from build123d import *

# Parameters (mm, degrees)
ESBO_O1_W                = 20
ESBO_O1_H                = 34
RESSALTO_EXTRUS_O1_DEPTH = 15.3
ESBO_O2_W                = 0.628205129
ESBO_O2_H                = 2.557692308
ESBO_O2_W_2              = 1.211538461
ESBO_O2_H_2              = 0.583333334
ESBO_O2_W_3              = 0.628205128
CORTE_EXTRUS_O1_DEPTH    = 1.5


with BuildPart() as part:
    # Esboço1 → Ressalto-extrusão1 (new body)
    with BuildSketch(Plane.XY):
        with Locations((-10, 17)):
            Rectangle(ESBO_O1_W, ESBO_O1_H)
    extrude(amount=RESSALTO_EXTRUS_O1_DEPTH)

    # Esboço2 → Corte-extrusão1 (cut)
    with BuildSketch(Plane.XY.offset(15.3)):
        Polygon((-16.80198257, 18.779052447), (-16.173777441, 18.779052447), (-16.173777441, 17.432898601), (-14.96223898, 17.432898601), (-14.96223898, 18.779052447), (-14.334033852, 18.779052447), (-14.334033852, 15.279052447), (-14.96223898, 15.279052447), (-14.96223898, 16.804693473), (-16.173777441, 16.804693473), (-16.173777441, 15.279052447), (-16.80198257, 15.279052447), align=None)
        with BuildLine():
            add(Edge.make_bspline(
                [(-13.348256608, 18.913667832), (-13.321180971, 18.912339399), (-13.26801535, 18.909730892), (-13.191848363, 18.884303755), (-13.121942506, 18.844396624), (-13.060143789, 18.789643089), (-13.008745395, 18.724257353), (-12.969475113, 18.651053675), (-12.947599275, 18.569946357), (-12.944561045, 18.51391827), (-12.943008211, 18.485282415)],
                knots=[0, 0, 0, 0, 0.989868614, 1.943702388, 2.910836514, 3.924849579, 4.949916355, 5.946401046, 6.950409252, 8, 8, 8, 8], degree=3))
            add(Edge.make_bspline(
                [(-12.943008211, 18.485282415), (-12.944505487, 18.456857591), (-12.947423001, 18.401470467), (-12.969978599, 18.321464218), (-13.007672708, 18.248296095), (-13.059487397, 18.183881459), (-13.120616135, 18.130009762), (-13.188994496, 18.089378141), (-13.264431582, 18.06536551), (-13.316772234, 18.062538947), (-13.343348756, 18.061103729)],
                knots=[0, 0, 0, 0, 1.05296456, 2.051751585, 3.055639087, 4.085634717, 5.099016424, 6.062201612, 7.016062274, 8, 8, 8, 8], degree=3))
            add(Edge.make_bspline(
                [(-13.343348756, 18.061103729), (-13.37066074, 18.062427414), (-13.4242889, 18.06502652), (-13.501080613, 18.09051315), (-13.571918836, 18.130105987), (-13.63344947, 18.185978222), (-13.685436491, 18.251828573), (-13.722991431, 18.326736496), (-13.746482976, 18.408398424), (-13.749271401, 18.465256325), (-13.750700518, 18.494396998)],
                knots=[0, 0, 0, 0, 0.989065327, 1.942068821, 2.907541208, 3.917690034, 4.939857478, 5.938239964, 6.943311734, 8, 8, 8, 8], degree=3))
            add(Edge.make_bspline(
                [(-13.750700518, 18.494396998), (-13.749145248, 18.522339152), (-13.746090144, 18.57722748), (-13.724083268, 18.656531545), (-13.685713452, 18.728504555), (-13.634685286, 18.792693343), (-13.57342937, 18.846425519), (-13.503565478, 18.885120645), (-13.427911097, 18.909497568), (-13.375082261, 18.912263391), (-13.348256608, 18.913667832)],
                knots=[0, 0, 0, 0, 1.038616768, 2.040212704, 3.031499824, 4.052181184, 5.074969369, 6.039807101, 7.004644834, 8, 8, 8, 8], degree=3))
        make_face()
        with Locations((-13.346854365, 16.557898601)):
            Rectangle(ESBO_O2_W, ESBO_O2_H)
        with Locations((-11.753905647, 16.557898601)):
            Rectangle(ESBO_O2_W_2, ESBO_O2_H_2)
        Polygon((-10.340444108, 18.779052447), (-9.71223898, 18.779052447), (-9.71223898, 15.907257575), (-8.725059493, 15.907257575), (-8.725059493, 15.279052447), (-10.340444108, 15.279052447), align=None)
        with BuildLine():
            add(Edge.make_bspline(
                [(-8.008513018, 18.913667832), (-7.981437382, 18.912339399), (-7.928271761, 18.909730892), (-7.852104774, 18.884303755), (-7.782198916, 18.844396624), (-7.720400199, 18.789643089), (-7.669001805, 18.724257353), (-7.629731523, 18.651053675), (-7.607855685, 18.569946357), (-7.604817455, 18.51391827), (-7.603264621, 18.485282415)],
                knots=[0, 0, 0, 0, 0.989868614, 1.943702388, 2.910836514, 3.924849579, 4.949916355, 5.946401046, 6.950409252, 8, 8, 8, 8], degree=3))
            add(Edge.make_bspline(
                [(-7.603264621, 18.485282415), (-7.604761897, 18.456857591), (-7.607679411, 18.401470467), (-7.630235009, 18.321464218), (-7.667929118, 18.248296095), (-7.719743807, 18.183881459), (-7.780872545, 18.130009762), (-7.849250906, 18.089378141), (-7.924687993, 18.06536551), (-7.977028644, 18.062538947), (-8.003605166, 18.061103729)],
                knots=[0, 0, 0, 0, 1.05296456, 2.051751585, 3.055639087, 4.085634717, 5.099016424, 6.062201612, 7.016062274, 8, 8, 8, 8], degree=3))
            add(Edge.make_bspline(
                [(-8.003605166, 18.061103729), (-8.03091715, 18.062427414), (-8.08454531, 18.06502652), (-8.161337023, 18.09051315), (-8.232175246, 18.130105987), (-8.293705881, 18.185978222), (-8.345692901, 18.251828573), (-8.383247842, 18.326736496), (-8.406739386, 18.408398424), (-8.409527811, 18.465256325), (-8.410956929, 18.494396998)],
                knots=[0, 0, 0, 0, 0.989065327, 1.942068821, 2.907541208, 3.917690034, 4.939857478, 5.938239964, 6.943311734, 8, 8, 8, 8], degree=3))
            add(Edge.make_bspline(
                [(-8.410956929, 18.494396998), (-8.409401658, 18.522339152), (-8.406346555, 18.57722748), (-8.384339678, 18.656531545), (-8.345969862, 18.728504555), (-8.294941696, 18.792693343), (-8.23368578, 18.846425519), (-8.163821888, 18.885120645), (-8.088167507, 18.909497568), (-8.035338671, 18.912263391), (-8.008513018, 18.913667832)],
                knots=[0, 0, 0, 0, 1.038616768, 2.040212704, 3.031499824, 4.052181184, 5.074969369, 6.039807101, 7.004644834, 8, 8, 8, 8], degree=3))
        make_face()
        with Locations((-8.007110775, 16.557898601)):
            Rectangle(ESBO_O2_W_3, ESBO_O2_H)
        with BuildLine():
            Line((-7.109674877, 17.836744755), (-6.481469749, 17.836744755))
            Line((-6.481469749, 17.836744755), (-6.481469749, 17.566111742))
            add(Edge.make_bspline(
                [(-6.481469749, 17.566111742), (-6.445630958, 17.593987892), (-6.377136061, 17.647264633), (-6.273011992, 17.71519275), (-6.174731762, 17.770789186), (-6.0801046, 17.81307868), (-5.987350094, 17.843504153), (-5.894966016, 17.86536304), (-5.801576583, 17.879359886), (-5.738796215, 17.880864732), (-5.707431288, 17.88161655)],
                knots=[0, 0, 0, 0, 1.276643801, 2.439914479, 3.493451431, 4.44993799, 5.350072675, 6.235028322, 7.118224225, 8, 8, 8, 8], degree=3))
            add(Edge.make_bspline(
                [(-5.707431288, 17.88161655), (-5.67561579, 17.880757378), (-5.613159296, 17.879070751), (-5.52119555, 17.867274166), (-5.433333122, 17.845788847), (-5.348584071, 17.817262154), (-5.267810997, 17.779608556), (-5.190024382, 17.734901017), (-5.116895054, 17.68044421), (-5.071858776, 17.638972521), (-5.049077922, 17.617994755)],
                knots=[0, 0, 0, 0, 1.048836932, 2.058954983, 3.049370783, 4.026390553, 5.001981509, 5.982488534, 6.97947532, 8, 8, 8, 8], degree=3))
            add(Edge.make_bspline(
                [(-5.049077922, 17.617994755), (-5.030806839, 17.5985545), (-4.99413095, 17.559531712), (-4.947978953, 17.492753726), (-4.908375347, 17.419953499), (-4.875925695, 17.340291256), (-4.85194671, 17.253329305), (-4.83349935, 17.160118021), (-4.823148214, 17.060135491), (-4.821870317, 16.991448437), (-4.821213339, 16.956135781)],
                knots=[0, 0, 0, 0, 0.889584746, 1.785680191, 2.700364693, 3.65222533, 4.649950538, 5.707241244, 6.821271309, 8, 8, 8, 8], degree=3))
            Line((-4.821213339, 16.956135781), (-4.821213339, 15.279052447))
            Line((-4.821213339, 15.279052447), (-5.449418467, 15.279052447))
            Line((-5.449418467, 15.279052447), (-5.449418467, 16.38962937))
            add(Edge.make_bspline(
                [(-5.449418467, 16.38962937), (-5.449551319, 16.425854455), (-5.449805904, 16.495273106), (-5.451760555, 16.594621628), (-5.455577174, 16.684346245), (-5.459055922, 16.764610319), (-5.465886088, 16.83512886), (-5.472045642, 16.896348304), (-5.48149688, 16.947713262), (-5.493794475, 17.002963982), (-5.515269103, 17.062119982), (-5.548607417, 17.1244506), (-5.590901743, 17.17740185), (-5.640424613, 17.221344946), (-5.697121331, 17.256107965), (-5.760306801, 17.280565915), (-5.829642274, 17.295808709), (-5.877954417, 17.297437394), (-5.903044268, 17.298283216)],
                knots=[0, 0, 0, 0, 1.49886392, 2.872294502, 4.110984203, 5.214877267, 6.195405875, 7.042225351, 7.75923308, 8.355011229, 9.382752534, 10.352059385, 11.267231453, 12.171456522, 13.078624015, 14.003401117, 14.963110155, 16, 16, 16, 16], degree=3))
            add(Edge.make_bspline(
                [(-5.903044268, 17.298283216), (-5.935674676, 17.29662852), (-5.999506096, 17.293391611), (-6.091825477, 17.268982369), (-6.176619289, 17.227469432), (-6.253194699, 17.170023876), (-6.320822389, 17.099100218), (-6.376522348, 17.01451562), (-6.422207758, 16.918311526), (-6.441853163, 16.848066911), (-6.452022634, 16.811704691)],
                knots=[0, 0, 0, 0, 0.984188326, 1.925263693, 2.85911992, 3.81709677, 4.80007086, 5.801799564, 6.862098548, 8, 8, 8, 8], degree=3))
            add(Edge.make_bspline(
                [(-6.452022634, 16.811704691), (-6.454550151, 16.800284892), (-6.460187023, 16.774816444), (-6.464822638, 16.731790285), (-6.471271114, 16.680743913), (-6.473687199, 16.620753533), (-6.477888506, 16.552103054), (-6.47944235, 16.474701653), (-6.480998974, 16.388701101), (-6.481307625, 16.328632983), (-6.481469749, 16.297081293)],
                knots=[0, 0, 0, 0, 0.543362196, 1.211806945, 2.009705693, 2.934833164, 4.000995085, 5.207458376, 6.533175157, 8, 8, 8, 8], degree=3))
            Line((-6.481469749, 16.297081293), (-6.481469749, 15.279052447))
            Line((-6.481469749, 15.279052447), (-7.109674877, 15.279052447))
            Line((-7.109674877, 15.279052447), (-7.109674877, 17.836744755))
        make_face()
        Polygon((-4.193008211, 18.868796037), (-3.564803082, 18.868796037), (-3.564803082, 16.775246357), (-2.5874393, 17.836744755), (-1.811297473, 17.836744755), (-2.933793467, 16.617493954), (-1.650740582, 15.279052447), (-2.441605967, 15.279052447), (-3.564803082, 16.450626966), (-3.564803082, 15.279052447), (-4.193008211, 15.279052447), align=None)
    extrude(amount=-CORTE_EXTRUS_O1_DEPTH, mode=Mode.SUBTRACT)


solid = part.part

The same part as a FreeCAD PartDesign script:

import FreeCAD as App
import Part
import Sketcher


def add_polygon(sketch, points):
    """Adds a closed chain of lines whose ends are joined by coincident constraints."""
    first, n = sketch.GeometryCount, len(points)
    for a, b in zip(points, points[1:] + points[:1]):
        sketch.addGeometry(Part.LineSegment(App.Vector(*a, 0), App.Vector(*b, 0)), False)
    for i in range(n):
        sketch.addConstraint(Sketcher.Constraint("Coincident", first + i, 2, first + (i + 1) % n, 1))

doc = App.newDocument("Part")
body = doc.addObject("PartDesign::Body", "Body")

sketch1 = body.newObject("Sketcher::SketchObject", "Sketch")
sketch1.AttachmentSupport = (doc.getObject("XY_Plane"), [""])
sketch1.MapMode = "FlatFace"
add_polygon(sketch1, [(-20, 34), (-20, 0), (0, 0), (0, 34)])
sketch1.addConstraint(Sketcher.Constraint("Vertical", 0))
sketch1.addConstraint(Sketcher.Constraint("Horizontal", 1))
sketch1.addConstraint(Sketcher.Constraint("Vertical", 2))
sketch1.addConstraint(Sketcher.Constraint("Horizontal", 3))
sketch1.addConstraint(Sketcher.Constraint("Coincident", 1, 2, -1, 1))
sketch1.addConstraint(Sketcher.Constraint("DistanceX", 1, 1, 1, 2, 20.0))
sketch1.addConstraint(Sketcher.Constraint("DistanceY", 0, 2, 0, 1, 34.0))
pad1 = body.newObject("PartDesign::Pad", "Pad")
pad1.Profile = sketch1
pad1.Length = 15.3

sketch2 = body.newObject("Sketcher::SketchObject", "Sketch001")
sketch2.AttachmentSupport = (doc.getObject("XY_Plane"), [""])
sketch2.MapMode = "FlatFace"
sketch2.AttachmentOffset = App.Placement(App.Vector(0, 0, 15.3), App.Rotation())
add_polygon(sketch2, [(-16.173777, 18.779052), (-16.801983, 18.779052), (-16.801983, 15.279052), (-16.173777, 15.279052), (-16.173777, 16.804693), (-14.962239, 16.804693), (-14.962239, 15.279052), (-14.334034, 15.279052), (-14.334034, 18.779052), (-14.962239, 18.779052), (-14.962239, 17.432899), (-16.173777, 17.432899)])
sketch2.addGeometry(Part.BSplineCurve([App.Vector(-13.348257, 18.913668, 0), App.Vector(-13.321181, 18.912339, 0), App.Vector(-13.268015, 18.909731, 0), App.Vector(-13.191848, 18.884304, 0), App.Vector(-13.121943, 18.844397, 0), App.Vector(-13.060144, 18.789643, 0), App.Vector(-13.008745, 18.724257, 0), App.Vector(-12.969475, 18.651054, 0), App.Vector(-12.947599, 18.569946, 0), App.Vector(-12.944561, 18.513918, 0), App.Vector(-12.943008, 18.485282, 0)], [4, 1, 1, 1, 1, 1, 1, 1, 4], [0, 0.989868614, 1.943702388, 2.910836514, 3.924849579, 4.949916355, 5.946401046, 6.950409252, 8], False, 3, [1, 1, 1, 1, 1, 1, 1, 1, 1, 1, 1], False), False)
sketch2.addGeometry(Part.BSplineCurve([App.Vector(-13.750701, 18.494397, 0), App.Vector(-13.749145, 18.522339, 0), App.Vector(-13.74609, 18.577227, 0), App.Vector(-13.724083, 18.656532, 0), App.Vector(-13.685713, 18.728505, 0), App.Vector(-13.634685, 18.792693, 0), App.Vector(-13.573429, 18.846426, 0), App.Vector(-13.503565, 18.885121, 0), App.Vector(-13.427911, 18.909498, 0), App.Vector(-13.375082, 18.912263, 0), App.Vector(-13.348257, 18.913668, 0)], [4, 1, 1, 1, 1, 1, 1, 1, 4], [0, 1.038616768, 2.040212704, 3.031499824, 4.052181184, 5.074969369, 6.039807101, 7.004644834, 8], False, 3, [1, 1, 1, 1, 1, 1, 1, 1, 1, 1, 1], False), False)
sketch2.addGeometry(Part.BSplineCurve([App.Vector(-13.343349, 18.061104, 0), App.Vector(-13.370661, 18.062427, 0), App.Vector(-13.424289, 18.065027, 0), App.Vector(-13.501081, 18.090513, 0), App.Vector(-13.571919, 18.130106, 0), App.Vector(-13.633449, 18.185978, 0), App.Vector(-13.685436, 18.251829, 0), App.Vector(-13.722991, 18.326736, 0), App.Vector(-13.746483, 18.408398, 0), App.Vector(-13.749271, 18.465256, 0), App.Vector(-13.750701, 18.494397, 0)], [4, 1, 1, 1, 1, 1, 1, 1, 4], [0, 0.989065327, 1.942068821, 2.907541208, 3.917690034, 4.939857478, 5.938239964, 6.943311734, 8], False, 3, [1, 1, 1, 1, 1, 1, 1, 1, 1, 1, 1], False), False)
sketch2.addGeometry(Part.BSplineCurve([App.Vector(-12.943008, 18.485282, 0), App.Vector(-12.944505, 18.456858, 0), App.Vector(-12.947423, 18.40147, 0), App.Vector(-12.969979, 18.321464, 0), App.Vector(-13.007673, 18.248296, 0), App.Vector(-13.059487, 18.183881, 0), App.Vector(-13.120616, 18.13001, 0), App.Vector(-13.188994, 18.089378, 0), App.Vector(-13.264432, 18.065366, 0), App.Vector(-13.316772, 18.062539, 0), App.Vector(-13.343349, 18.061104, 0)], [4, 1, 1, 1, 1, 1, 1, 1, 4], [0, 1.05296456, 2.051751585, 3.055639087, 4.085634717, 5.099016424, 6.062201612, 7.016062274, 8], False, 3, [1, 1, 1, 1, 1, 1, 1, 1, 1, 1, 1], False), False)
add_polygon(sketch2, [(-13.660957, 17.836745), (-13.660957, 15.279052), (-13.032752, 15.279052), (-13.032752, 17.836745)])
add_polygon(sketch2, [(-12.359675, 16.849565), (-12.359675, 16.266232), (-11.148136, 16.266232), (-11.148136, 16.849565)])
add_polygon(sketch2, [(-9.712239, 18.779052), (-10.340444, 18.779052), (-10.340444, 15.279052), (-8.725059, 15.279052), (-8.725059, 15.907258), (-9.712239, 15.907258)])
sketch2.addGeometry(Part.BSplineCurve([App.Vector(-8.008513, 18.913668, 0), App.Vector(-7.981437, 18.912339, 0), App.Vector(-7.928272, 18.909731, 0), App.Vector(-7.852105, 18.884304, 0), App.Vector(-7.782199, 18.844397, 0), App.Vector(-7.7204, 18.789643, 0), App.Vector(-7.669002, 18.724257, 0), App.Vector(-7.629732, 18.651054, 0), App.Vector(-7.607856, 18.569946, 0), App.Vector(-7.604817, 18.513918, 0), App.Vector(-7.603265, 18.485282, 0)], [4, 1, 1, 1, 1, 1, 1, 1, 4], [0, 0.989868614, 1.943702388, 2.910836514, 3.924849579, 4.949916355, 5.946401046, 6.950409252, 8], False, 3, [1, 1, 1, 1, 1, 1, 1, 1, 1, 1, 1], False), False)
sketch2.addGeometry(Part.BSplineCurve([App.Vector(-8.410957, 18.494397, 0), App.Vector(-8.409402, 18.522339, 0), App.Vector(-8.406347, 18.577227, 0), App.Vector(-8.38434, 18.656532, 0), App.Vector(-8.34597, 18.728505, 0), App.Vector(-8.294942, 18.792693, 0), App.Vector(-8.233686, 18.846426, 0), App.Vector(-8.163822, 18.885121, 0), App.Vector(-8.088168, 18.909498, 0), App.Vector(-8.035339, 18.912263, 0), App.Vector(-8.008513, 18.913668, 0)], [4, 1, 1, 1, 1, 1, 1, 1, 4], [0, 1.038616768, 2.040212704, 3.031499824, 4.052181184, 5.074969369, 6.039807101, 7.004644834, 8], False, 3, [1, 1, 1, 1, 1, 1, 1, 1, 1, 1, 1], False), False)
sketch2.addGeometry(Part.BSplineCurve([App.Vector(-8.003605, 18.061104, 0), App.Vector(-8.030917, 18.062427, 0), App.Vector(-8.084545, 18.065027, 0), App.Vector(-8.161337, 18.090513, 0), App.Vector(-8.232175, 18.130106, 0), App.Vector(-8.293706, 18.185978, 0), App.Vector(-8.345693, 18.251829, 0), App.Vector(-8.383248, 18.326736, 0), App.Vector(-8.406739, 18.408398, 0), App.Vector(-8.409528, 18.465256, 0), App.Vector(-8.410957, 18.494397, 0)], [4, 1, 1, 1, 1, 1, 1, 1, 4], [0, 0.989065327, 1.942068821, 2.907541208, 3.917690034, 4.939857478, 5.938239964, 6.943311734, 8], False, 3, [1, 1, 1, 1, 1, 1, 1, 1, 1, 1, 1], False), False)
sketch2.addGeometry(Part.BSplineCurve([App.Vector(-7.603265, 18.485282, 0), App.Vector(-7.604762, 18.456858, 0), App.Vector(-7.607679, 18.40147, 0), App.Vector(-7.630235, 18.321464, 0), App.Vector(-7.667929, 18.248296, 0), App.Vector(-7.719744, 18.183881, 0), App.Vector(-7.780873, 18.13001, 0), App.Vector(-7.849251, 18.089378, 0), App.Vector(-7.924688, 18.065366, 0), App.Vector(-7.977029, 18.062539, 0), App.Vector(-8.003605, 18.061104, 0)], [4, 1, 1, 1, 1, 1, 1, 1, 4], [0, 1.05296456, 2.051751585, 3.055639087, 4.085634717, 5.099016424, 6.062201612, 7.016062274, 8], False, 3, [1, 1, 1, 1, 1, 1, 1, 1, 1, 1, 1], False), False)
add_polygon(sketch2, [(-8.321213, 17.836745), (-8.321213, 15.279052), (-7.693008, 15.279052), (-7.693008, 17.836745)])
sketch2.addGeometry(Part.LineSegment(App.Vector(-6.48147, 17.836745, 0), App.Vector(-7.109675, 17.836745, 0)), False)
sketch2.addGeometry(Part.LineSegment(App.Vector(-7.109675, 17.836745, 0), App.Vector(-7.109675, 15.279052, 0)), False)
sketch2.addGeometry(Part.LineSegment(App.Vector(-7.109675, 15.279052, 0), App.Vector(-6.48147, 15.279052, 0)), False)
sketch2.addGeometry(Part.LineSegment(App.Vector(-6.48147, 15.279052, 0), App.Vector(-6.48147, 16.297081, 0)), False)
sketch2.addGeometry(Part.BSplineCurve([App.Vector(-6.452023, 16.811705, 0), App.Vector(-6.45455, 16.800285, 0), App.Vector(-6.460187, 16.774816, 0), App.Vector(-6.464823, 16.73179, 0), App.Vector(-6.471271, 16.680744, 0), App.Vector(-6.473687, 16.620754, 0), App.Vector(-6.477889, 16.552103, 0), App.Vector(-6.479442, 16.474702, 0), App.Vector(-6.480999, 16.388701, 0), App.Vector(-6.481308, 16.328633, 0), App.Vector(-6.48147, 16.297081, 0)], [4, 1, 1, 1, 1, 1, 1, 1, 4], [0, 0.543362196, 1.211806945, 2.009705693, 2.934833164, 4.000995085, 5.207458376, 6.533175157, 8], False, 3, [1, 1, 1, 1, 1, 1, 1, 1, 1, 1, 1], False), False)
sketch2.addGeometry(Part.BSplineCurve([App.Vector(-5.903044, 17.298283, 0), App.Vector(-5.935675, 17.296629, 0), App.Vector(-5.999506, 17.293392, 0), App.Vector(-6.091825, 17.268982, 0), App.Vector(-6.176619, 17.227469, 0), App.Vector(-6.253195, 17.170024, 0), App.Vector(-6.320822, 17.0991, 0), App.Vector(-6.376522, 17.014516, 0), App.Vector(-6.422208, 16.918312, 0), App.Vector(-6.441853, 16.848067, 0), App.Vector(-6.452023, 16.811705, 0)], [4, 1, 1, 1, 1, 1, 1, 1, 4], [0, 0.984188326, 1.925263693, 2.85911992, 3.81709677, 4.80007086, 5.801799564, 6.862098548, 8], False, 3, [1, 1, 1, 1, 1, 1, 1, 1, 1, 1, 1], False), False)
sketch2.addGeometry(Part.BSplineCurve([App.Vector(-5.449418, 16.389629, 0), App.Vector(-5.449551, 16.425854, 0), App.Vector(-5.449806, 16.495273, 0), App.Vector(-5.451761, 16.594622, 0), App.Vector(-5.455577, 16.684346, 0), App.Vector(-5.459056, 16.76461, 0), App.Vector(-5.465886, 16.835129, 0), App.Vector(-5.472046, 16.896348, 0), App.Vector(-5.481497, 16.947713, 0), App.Vector(-5.493794, 17.002964, 0), App.Vector(-5.515269, 17.06212, 0), App.Vector(-5.548607, 17.124451, 0), App.Vector(-5.590902, 17.177402, 0), App.Vector(-5.640425, 17.221345, 0), App.Vector(-5.697121, 17.256108, 0), App.Vector(-5.760307, 17.280566, 0), App.Vector(-5.829642, 17.295809, 0), App.Vector(-5.877954, 17.297437, 0), App.Vector(-5.903044, 17.298283, 0)], [4, 1, 1, 1, 1, 1, 1, 1, 1, 1, 1, 1, 1, 1, 1, 1, 4], [0, 1.49886392, 2.872294502, 4.110984203, 5.214877267, 6.195405875, 7.042225351, 7.75923308, 8.355011229, 9.382752534, 10.352059385, 11.267231453, 12.171456522, 13.078624015, 14.003401117, 14.963110155, 16], False, 3, [1, 1, 1, 1, 1, 1, 1, 1, 1, 1, 1, 1, 1, 1, 1, 1, 1, 1, 1], False), False)
sketch2.addGeometry(Part.LineSegment(App.Vector(-5.449418, 16.389629, 0), App.Vector(-5.449418, 15.279052, 0)), False)
sketch2.addGeometry(Part.LineSegment(App.Vector(-5.449418, 15.279052, 0), App.Vector(-4.821213, 15.279052, 0)), False)
sketch2.addGeometry(Part.LineSegment(App.Vector(-4.821213, 15.279052, 0), App.Vector(-4.821213, 16.956136, 0)), False)
sketch2.addGeometry(Part.BSplineCurve([App.Vector(-5.049078, 17.617995, 0), App.Vector(-5.030807, 17.598554, 0), App.Vector(-4.994131, 17.559532, 0), App.Vector(-4.947979, 17.492754, 0), App.Vector(-4.908375, 17.419953, 0), App.Vector(-4.875926, 17.340291, 0), App.Vector(-4.851947, 17.253329, 0), App.Vector(-4.833499, 17.160118, 0), App.Vector(-4.823148, 17.060135, 0), App.Vector(-4.82187, 16.991448, 0), App.Vector(-4.821213, 16.956136, 0)], [4, 1, 1, 1, 1, 1, 1, 1, 4], [0, 0.889584746, 1.785680191, 2.700364693, 3.65222533, 4.649950538, 5.707241244, 6.821271309, 8], False, 3, [1, 1, 1, 1, 1, 1, 1, 1, 1, 1, 1], False), False)
sketch2.addGeometry(Part.BSplineCurve([App.Vector(-5.707431, 17.881617, 0), App.Vector(-5.675616, 17.880757, 0), App.Vector(-5.613159, 17.879071, 0), App.Vector(-5.521196, 17.867274, 0), App.Vector(-5.433333, 17.845789, 0), App.Vector(-5.348584, 17.817262, 0), App.Vector(-5.267811, 17.779609, 0), App.Vector(-5.190024, 17.734901, 0), App.Vector(-5.116895, 17.680444, 0), App.Vector(-5.071859, 17.638973, 0), App.Vector(-5.049078, 17.617995, 0)], [4, 1, 1, 1, 1, 1, 1, 1, 4], [0, 1.048836932, 2.058954983, 3.049370783, 4.026390553, 5.001981509, 5.982488534, 6.97947532, 8], False, 3, [1, 1, 1, 1, 1, 1, 1, 1, 1, 1, 1], False), False)
sketch2.addGeometry(Part.BSplineCurve([App.Vector(-6.48147, 17.566112, 0), App.Vector(-6.445631, 17.593988, 0), App.Vector(-6.377136, 17.647265, 0), App.Vector(-6.273012, 17.715193, 0), App.Vector(-6.174732, 17.770789, 0), App.Vector(-6.080105, 17.813079, 0), App.Vector(-5.98735, 17.843504, 0), App.Vector(-5.894966, 17.865363, 0), App.Vector(-5.801577, 17.87936, 0), App.Vector(-5.738796, 17.880865, 0), App.Vector(-5.707431, 17.881617, 0)], [4, 1, 1, 1, 1, 1, 1, 1, 4], [0, 1.276643801, 2.439914479, 3.493451431, 4.44993799, 5.350072675, 6.235028322, 7.118224225, 8], False, 3, [1, 1, 1, 1, 1, 1, 1, 1, 1, 1, 1], False), False)
sketch2.addGeometry(Part.LineSegment(App.Vector(-6.48147, 17.566112, 0), App.Vector(-6.48147, 17.836745, 0)), False)
add_polygon(sketch2, [(-3.564803, 18.868796), (-4.193008, 18.868796), (-4.193008, 15.279052), (-3.564803, 15.279052), (-3.564803, 16.450627), (-2.441606, 15.279052), (-1.650741, 15.279052), (-2.933793, 16.617494), (-1.811297, 17.836745), (-2.587439, 17.836745), (-3.564803, 16.775246)])
sketch2.addConstraint(Sketcher.Constraint("Block", 12))
sketch2.addConstraint(Sketcher.Constraint("Block", 13))
sketch2.addConstraint(Sketcher.Constraint("Block", 14))
sketch2.addConstraint(Sketcher.Constraint("Block", 15))
sketch2.addConstraint(Sketcher.Constraint("Block", 30))
sketch2.addConstraint(Sketcher.Constraint("Block", 31))
sketch2.addConstraint(Sketcher.Constraint("Block", 32))
sketch2.addConstraint(Sketcher.Constraint("Block", 33))
sketch2.addConstraint(Sketcher.Constraint("Block", 42))
sketch2.addConstraint(Sketcher.Constraint("Block", 43))
sketch2.addConstraint(Sketcher.Constraint("Block", 44))
sketch2.addConstraint(Sketcher.Constraint("Block", 48))
sketch2.addConstraint(Sketcher.Constraint("Block", 49))
sketch2.addConstraint(Sketcher.Constraint("Block", 50))
sketch2.addConstraint(Sketcher.Constraint("Coincident", 38, 2, 39, 1))
sketch2.addConstraint(Sketcher.Constraint("Coincident", 39, 2, 40, 1))
sketch2.addConstraint(Sketcher.Constraint("Coincident", 40, 2, 41, 1))
sketch2.addConstraint(Sketcher.Constraint("Coincident", 41, 2, 42, 2))
sketch2.addConstraint(Sketcher.Constraint("Coincident", 44, 1, 45, 1))
sketch2.addConstraint(Sketcher.Constraint("Coincident", 45, 2, 46, 1))
sketch2.addConstraint(Sketcher.Constraint("Coincident", 46, 2, 47, 1))
sketch2.addConstraint(Sketcher.Constraint("Coincident", 47, 2, 48, 2))
sketch2.addConstraint(Sketcher.Constraint("Coincident", 50, 1, 51, 1))
sketch2.addConstraint(Sketcher.Constraint("Coincident", 51, 2, 38, 1))
sketch2.addConstraint(Sketcher.Constraint("Horizontal", 0))
sketch2.addConstraint(Sketcher.Constraint("Vertical", 1))
sketch2.addConstraint(Sketcher.Constraint("Horizontal", 2))
sketch2.addConstraint(Sketcher.Constraint("Vertical", 3))
sketch2.addConstraint(Sketcher.Constraint("Horizontal", 4))
sketch2.addConstraint(Sketcher.Constraint("Vertical", 5))
sketch2.addConstraint(Sketcher.Constraint("Horizontal", 6))
sketch2.addConstraint(Sketcher.Constraint("Vertical", 7))
sketch2.addConstraint(Sketcher.Constraint("Horizontal", 8))
sketch2.addConstraint(Sketcher.Constraint("Vertical", 9))
sketch2.addConstraint(Sketcher.Constraint("Horizontal", 10))
sketch2.addConstraint(Sketcher.Constraint("Vertical", 11))
sketch2.addConstraint(Sketcher.Constraint("Vertical", 16))
sketch2.addConstraint(Sketcher.Constraint("Horizontal", 17))
sketch2.addConstraint(Sketcher.Constraint("Vertical", 18))
sketch2.addConstraint(Sketcher.Constraint("Horizontal", 19))
sketch2.addConstraint(Sketcher.Constraint("Vertical", 20))
sketch2.addConstraint(Sketcher.Constraint("Horizontal", 21))
sketch2.addConstraint(Sketcher.Constraint("Vertical", 22))
sketch2.addConstraint(Sketcher.Constraint("Horizontal", 23))
sketch2.addConstraint(Sketcher.Constraint("Horizontal", 24))
sketch2.addConstraint(Sketcher.Constraint("Vertical", 25))
sketch2.addConstraint(Sketcher.Constraint("Horizontal", 26))
sketch2.addConstraint(Sketcher.Constraint("Vertical", 27))
sketch2.addConstraint(Sketcher.Constraint("Horizontal", 28))
sketch2.addConstraint(Sketcher.Constraint("Vertical", 29))
sketch2.addConstraint(Sketcher.Constraint("Vertical", 34))
sketch2.addConstraint(Sketcher.Constraint("Horizontal", 35))
sketch2.addConstraint(Sketcher.Constraint("Vertical", 36))
sketch2.addConstraint(Sketcher.Constraint("Horizontal", 37))
sketch2.addConstraint(Sketcher.Constraint("Horizontal", 38))
sketch2.addConstraint(Sketcher.Constraint("Vertical", 39))
sketch2.addConstraint(Sketcher.Constraint("Horizontal", 40))
sketch2.addConstraint(Sketcher.Constraint("Vertical", 41))
sketch2.addConstraint(Sketcher.Constraint("Vertical", 45))
sketch2.addConstraint(Sketcher.Constraint("Horizontal", 46))
sketch2.addConstraint(Sketcher.Constraint("Vertical", 47))
sketch2.addConstraint(Sketcher.Constraint("Vertical", 51))
sketch2.addConstraint(Sketcher.Constraint("Horizontal", 52))
sketch2.addConstraint(Sketcher.Constraint("Vertical", 53))
sketch2.addConstraint(Sketcher.Constraint("Horizontal", 54))
sketch2.addConstraint(Sketcher.Constraint("Vertical", 55))
sketch2.addConstraint(Sketcher.Constraint("Horizontal", 57))
sketch2.addConstraint(Sketcher.Constraint("Horizontal", 60))
sketch2.addConstraint(Sketcher.Constraint("Vertical", 62))
sketch2.addConstraint(Sketcher.Constraint("DistanceY", 1, 2, 1, 1, 3.5))
sketch2.addConstraint(Sketcher.Constraint("DistanceY", 7, 1, 7, 2, 3.5))
sketch2.addConstraint(Sketcher.Constraint("DistanceY", 25, 2, 25, 1, 3.5))
sketch2.addConstraint(Sketcher.Constraint("DistanceY", 5, 2, 0, 2, 3.5))
sketch2.addConstraint(Sketcher.Constraint("DistanceX", 4, 1, 4, 2, 1.211538))
sketch2.addConstraint(Sketcher.Constraint("DistanceX", 10, 2, 10, 1, 1.211538))
sketch2.addConstraint(Sketcher.Constraint("DistanceX", 21, 1, 21, 2, 1.211538))
sketch2.addConstraint(Sketcher.Constraint("DistanceX", 28, 2, 28, 1, 0.987179))
sketch2.addConstraint(Sketcher.Constraint("DistanceX", 60, 2, 60, 1, 0.776142))
sketch2.addConstraint(Sketcher.Constraint("DistanceY", 3, 1, 3, 2, 1.525641))
sketch2.addConstraint(Sketcher.Constraint("DistanceY", 41, 1, 41, 2, 1.018029))
sketch2.addConstraint(Sketcher.Constraint("DistanceY", 62, 1, 62, 2, 2.09355))
sketch2.addConstraint(Sketcher.Constraint("DistanceY", -1, 1, 9, 2, 17.432899))
sketch2.addConstraint(Sketcher.Constraint("DistanceY", 61, 2, 60, 2, 1.061498))
sketch2.addConstraint(Sketcher.Constraint("Distance", 56, 1.623009))
sketch2.addConstraint(Sketcher.Constraint("Distance", 58, 1.85409))
sketch2.addConstraint(Sketcher.Constraint("Distance", 61, 1.44292))
sketch2.addConstraint(Sketcher.Constraint("DistanceX", 0, 2, 0, 1, 0.628205))
sketch2.addConstraint(Sketcher.Constraint("DistanceX", 2, 1, 2, 2, 0.628205))
sketch2.addConstraint(Sketcher.Constraint("DistanceX", 6, 1, 6, 2, 0.628205))
sketch2.addConstraint(Sketcher.Constraint("DistanceX", 17, 1, 17, 2, 0.628205))
sketch2.addConstraint(Sketcher.Constraint("DistanceX", 24, 2, 24, 1, 0.628205))
sketch2.addConstraint(Sketcher.Constraint("DistanceX", 35, 1, 35, 2, 0.628205))
sketch2.addConstraint(Sketcher.Constraint("DistanceX", 38, 2, 38, 1, 0.628205))
sketch2.addConstraint(Sketcher.Constraint("DistanceX", 52, 2, 52, 1, 0.628205))
sketch2.addConstraint(Sketcher.Constraint("DistanceX", 54, 1, 54, 2, 0.628205))
sketch2.addConstraint(Sketcher.Constraint("DistanceX", 57, 1, 57, 2, 0.790865))
sketch2.addConstraint(Sketcher.Constraint("DistanceY", 9, 2, 9, 1, 1.346154))
sketch2.addConstraint(Sketcher.Constraint("DistanceY", 16, 2, 16, 1, 2.557692))
sketch2.addConstraint(Sketcher.Constraint("DistanceY", 20, 2, 20, 1, 0.583333))
sketch2.addConstraint(Sketcher.Constraint("DistanceY", 27, 1, 27, 2, 0.628205))
sketch2.addConstraint(Sketcher.Constraint("DistanceY", 34, 2, 34, 1, 2.557692))
sketch2.addConstraint(Sketcher.Constraint("DistanceY", 39, 2, 39, 1, 2.557692))
sketch2.addConstraint(Sketcher.Constraint("DistanceY", 45, 2, 45, 1, 1.110577))
sketch2.addConstraint(Sketcher.Constraint("DistanceY", 53, 2, 53, 1, 3.589744))
sketch2.addConstraint(Sketcher.Constraint("DistanceY", 55, 1, 55, 2, 1.171575))
sketch2.addConstraint(Sketcher.Constraint("DistanceX", 4, 2, -1, 1, 14.962239))
sketch2.addConstraint(Sketcher.Constraint("DistanceX", 17, 2, -1, 1, 13.032752))
sketch2.addConstraint(Sketcher.Constraint("DistanceY", -1, 1, 20, 2, 16.266232))
sketch2.addConstraint(Sketcher.Constraint("DistanceX", 26, 2, -1, 1, 8.725059))
sketch2.addConstraint(Sketcher.Constraint("DistanceX", 35, 2, -1, 1, 7.693008))
sketch2.addConstraint(Sketcher.Constraint("DistanceX", 52, 2, -1, 1, 4.193008))
sketch2.addConstraint(Sketcher.Constraint("DistanceX", 57, 2, -1, 1, 1.650741))
sketch2.addConstraint(Sketcher.Constraint("DistanceY", 16, 2, 4, 2, 1.525641))
sketch2.addConstraint(Sketcher.Constraint("DistanceX", 6, 2, 20, 2, 1.974359))
sketch2.addConstraint(Sketcher.Constraint("DistanceY", 21, 2, 24, 2, 2.512821))
sketch2.addConstraint(Sketcher.Constraint("DistanceY", 34, 2, 21, 2, 0.987179))
sketch2.addConstraint(Sketcher.Constraint("DistanceY", 47, 2, 52, 2, 1.91266))
sketch2.addConstraint(Sketcher.Constraint("DistanceX", 55, 2, 58, 2, 0.63101))
pocket1 = body.newObject("PartDesign::Pocket", "Pocket")
pocket1.Profile = sketch2
pocket1.Length = 1.5

doc.recompute()
